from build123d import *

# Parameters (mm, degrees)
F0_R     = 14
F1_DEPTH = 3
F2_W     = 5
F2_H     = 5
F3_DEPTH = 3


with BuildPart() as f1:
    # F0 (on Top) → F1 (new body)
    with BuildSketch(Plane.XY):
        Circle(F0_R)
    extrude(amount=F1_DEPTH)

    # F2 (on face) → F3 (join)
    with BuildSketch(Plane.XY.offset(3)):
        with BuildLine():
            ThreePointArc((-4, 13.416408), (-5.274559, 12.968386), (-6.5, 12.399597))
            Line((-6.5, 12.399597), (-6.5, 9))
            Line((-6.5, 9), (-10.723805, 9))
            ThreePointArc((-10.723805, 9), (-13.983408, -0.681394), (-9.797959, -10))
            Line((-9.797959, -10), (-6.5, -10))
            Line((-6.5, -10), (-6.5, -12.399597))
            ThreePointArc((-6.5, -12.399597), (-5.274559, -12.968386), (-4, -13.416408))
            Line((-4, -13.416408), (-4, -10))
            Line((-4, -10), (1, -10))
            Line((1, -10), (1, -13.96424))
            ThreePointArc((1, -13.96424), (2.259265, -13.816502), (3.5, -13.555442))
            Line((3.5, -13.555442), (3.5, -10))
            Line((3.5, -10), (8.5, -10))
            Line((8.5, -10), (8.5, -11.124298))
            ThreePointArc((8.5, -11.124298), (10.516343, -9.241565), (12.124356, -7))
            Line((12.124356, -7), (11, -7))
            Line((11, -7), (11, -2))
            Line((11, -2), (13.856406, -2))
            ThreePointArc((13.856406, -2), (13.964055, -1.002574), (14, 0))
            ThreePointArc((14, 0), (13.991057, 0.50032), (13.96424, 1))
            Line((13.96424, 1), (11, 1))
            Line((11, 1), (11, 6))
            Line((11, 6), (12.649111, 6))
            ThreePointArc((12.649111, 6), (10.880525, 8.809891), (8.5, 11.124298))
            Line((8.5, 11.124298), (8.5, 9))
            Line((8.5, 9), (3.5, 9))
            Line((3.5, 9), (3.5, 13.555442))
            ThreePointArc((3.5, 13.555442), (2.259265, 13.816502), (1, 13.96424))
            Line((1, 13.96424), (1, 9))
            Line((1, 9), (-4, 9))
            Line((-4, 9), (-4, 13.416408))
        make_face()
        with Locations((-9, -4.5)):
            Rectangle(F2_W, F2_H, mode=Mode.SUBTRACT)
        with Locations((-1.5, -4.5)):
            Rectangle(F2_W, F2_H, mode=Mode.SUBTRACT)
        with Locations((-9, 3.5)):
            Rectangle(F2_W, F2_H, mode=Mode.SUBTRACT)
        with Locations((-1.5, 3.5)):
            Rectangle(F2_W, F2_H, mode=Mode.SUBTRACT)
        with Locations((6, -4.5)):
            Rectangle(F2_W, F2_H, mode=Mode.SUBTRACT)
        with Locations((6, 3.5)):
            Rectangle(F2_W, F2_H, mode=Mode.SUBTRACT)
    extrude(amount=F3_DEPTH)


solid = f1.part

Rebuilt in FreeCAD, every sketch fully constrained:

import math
import FreeCAD as App
import Part
import Sketcher
from FreeCAD import Vector

doc = App.newDocument("Part")
body = doc.addObject("PartDesign::Body", "Body")

# Sketch on XY plane
sketch1 = body.newObject("Sketcher::SketchObject", "Sketch")
sketch1.AttachmentSupport = (doc.getObject("XY_Plane"), [""])
sketch1.MapMode = "FlatFace"
sketch1.addGeometry(Part.Circle(Vector(0, 0, 0), Vector(0, 0, 1), 14), False)
sketch1.addConstraint(Sketcher.Constraint("Coincident", 0, 3, -1, 1))
sketch1.addConstraint(Sketcher.Constraint("Diameter", 0, 28.0))
pad1 = body.newObject("PartDesign::Pad", "Pad")
pad1.Profile = sketch1
pad1.Length = 3

# Sketch on XY plane
sketch2 = body.newObject("Sketcher::SketchObject", "Sketch001")
sketch2.AttachmentSupport = (doc.getObject("XY_Plane"), [""])
sketch2.MapMode = "FlatFace"
sketch2.AttachmentOffset = App.Placement(Vector(0, 0, 3), App.Rotation())
sketch2.addGeometry(Part.ArcOfCircle(Part.Circle(Vector(-0.00001, 0.000024, 0), Vector(0, 0, 1), 13.999974), math.radians(106.601538), math.radians(117.664013)), False)
sketch2.addGeometry(Part.LineSegment(Vector(-6.5, 12.399597, 0), Vector(-6.5, 9, 0)), False)
sketch2.addGeometry(Part.LineSegment(Vector(-6.5, 9, 0), Vector(-10.723805, 9, 0)), False)
sketch2.addGeometry(Part.ArcOfCircle(Part.Circle(Vector(0, 0, 0), Vector(0, 0, 1), 14), math.radians(139.994798), math.radians(225.584691)), False)
sketch2.addGeometry(Part.LineSegment(Vector(-9.797959, -10, 0), Vector(-6.5, -10, 0)), False)
sketch2.addGeometry(Part.LineSegment(Vector(-6.5, -10, 0), Vector(-6.5, -12.399597, 0)), False)
sketch2.addGeometry(Part.ArcOfCircle(Part.Circle(Vector(-0.00001, -0.000024, 0), Vector(0, 0, 1), 13.999974), math.radians(-117.664013), math.radians(-106.601538)), False)
sketch2.addGeometry(Part.LineSegment(Vector(-4, -13.416408, 0), Vector(-4, -10, 0)), False)
sketch2.addGeometry(Part.LineSegment(Vector(-4, -10, 0), Vector(1, -10, 0)), False)
sketch2.addGeometry(Part.LineSegment(Vector(1, -10, 0), Vector(1, -13.96424, 0)), False)
sketch2.addGeometry(Part.ArcOfCircle(Part.Circle(Vector(0.000005, -0.000022, 0), Vector(0, 0, 1), 13.999978), math.radians(-85.903972), math.radians(-75.522487)), False)
sketch2.addGeometry(Part.LineSegment(Vector(3.5, -13.555442, 0), Vector(3.5, -10, 0)), False)
sketch2.addGeometry(Part.LineSegment(Vector(3.5, -10, 0), Vector(8.5, -10, 0)), False)
sketch2.addGeometry(Part.LineSegment(Vector(8.5, -10, 0), Vector(8.5, -11.124298, 0)), False)
sketch2.addGeometry(Part.ArcOfCircle(Part.Circle(Vector(-0.000018, 0.000017, 0), Vector(0, 0, 1), 14.000025), math.radians(-52.616783), math.radians(-30.00002)), False)
sketch2.addGeometry(Part.LineSegment(Vector(12.124356, -7, 0), Vector(11, -7, 0)), False)
sketch2.addGeometry(Part.LineSegment(Vector(11, -7, 0), Vector(11, -2, 0)), False)
sketch2.addGeometry(Part.LineSegment(Vector(11, -2, 0), Vector(13.856406, -2, 0)), False)
sketch2.addGeometry(Part.ArcOfCircle(Part.Circle(Vector(-0.000096, 0.00001, 0), Vector(0, 0, 1), 14.000096), math.radians(-8.213196), math.radians(-0.000041)), False)
sketch2.addGeometry(Part.ArcOfCircle(Part.Circle(Vector(-0.000185, -0.000007, 0), Vector(0, 0, 1), 14.000185), math.radians(0.00003), math.radians(4.096019)), False)
sketch2.addGeometry(Part.LineSegment(Vector(13.96424, 1, 0), Vector(11, 1, 0)), False)
sketch2.addGeometry(Part.LineSegment(Vector(11, 1, 0), Vector(11, 6, 0)), False)
sketch2.addGeometry(Part.LineSegment(Vector(11, 6, 0), Vector(12.649111, 6, 0)), False)
sketch2.addGeometry(Part.ArcOfCircle(Part.Circle(Vector(-0.000004, -0.000003, 0), Vector(0, 0, 1), 14.000005), math.radians(25.376939), math.radians(52.616798)), False)
sketch2.addGeometry(Part.LineSegment(Vector(8.5, 11.124298, 0), Vector(8.5, 9, 0)), False)
sketch2.addGeometry(Part.LineSegment(Vector(8.5, 9, 0), Vector(3.5, 9, 0)), False)
sketch2.addGeometry(Part.LineSegment(Vector(3.5, 9, 0), Vector(3.5, 13.555442, 0)), False)
sketch2.addGeometry(Part.ArcOfCircle(Part.Circle(Vector(0.000005, 0.000022, 0), Vector(0, 0, 1), 13.999978), math.radians(75.522487), math.radians(85.903972)), False)
sketch2.addGeometry(Part.LineSegment(Vector(1, 13.96424, 0), Vector(1, 9, 0)), False)
sketch2.addGeometry(Part.LineSegment(Vector(1, 9, 0), Vector(-4, 9, 0)), False)
sketch2.addGeometry(Part.LineSegment(Vector(-4, 9, 0), Vector(-4, 13.416408, 0)), False)
sketch2.addGeometry(Part.LineSegment(Vector(-6.5, -7, 0), Vector(-11.5, -7, 0)), False)
sketch2.addGeometry(Part.LineSegment(Vector(-11.5, -7, 0), Vector(-11.5, -2, 0)), False)
sketch2.addGeometry(Part.LineSegment(Vector(-11.5, -2, 0), Vector(-6.5, -2, 0)), False)
sketch2.addGeometry(Part.LineSegment(Vector(-6.5, -2, 0), Vector(-6.5, -7, 0)), False)
sketch2.addGeometry(Part.LineSegment(Vector(1, -7, 0), Vector(-4, -7, 0)), False)
sketch2.addGeometry(Part.LineSegment(Vector(-4, -7, 0), Vector(-4, -2, 0)), False)
sketch2.addGeometry(Part.LineSegment(Vector(-4, -2, 0), Vector(1, -2, 0)), False)
sketch2.addGeometry(Part.LineSegment(Vector(1, -2, 0), Vector(1, -7, 0)), False)
sketch2.addGeometry(Part.LineSegment(Vector(8.5, -7, 0), Vector(3.5, -7, 0)), False)
sketch2.addGeometry(Part.LineSegment(Vector(3.5, -7, 0), Vector(3.5, -2, 0)), False)
sketch2.addGeometry(Part.LineSegment(Vector(3.5, -2, 0), Vector(8.5, -2, 0)), False)
sketch2.addGeometry(Part.LineSegment(Vector(8.5, -2, 0), Vector(8.5, -7, 0)), False)
sketch2.addGeometry(Part.LineSegment(Vector(-6.5, 1, 0), Vector(-11.5, 1, 0)), False)
sketch2.addGeometry(Part.LineSegment(Vector(-11.5, 1, 0), Vector(-11.5, 6, 0)), False)
sketch2.addGeometry(Part.LineSegment(Vector(-11.5, 6, 0), Vector(-6.5, 6, 0)), False)
sketch2.addGeometry(Part.LineSegment(Vector(-6.5, 6, 0), Vector(-6.5, 1, 0)), False)
sketch2.addGeometry(Part.LineSegment(Vector(1, 1, 0), Vector(-4, 1, 0)), False)
sketch2.addGeometry(Part.LineSegment(Vector(-4, 1, 0), Vector(-4, 6, 0)), False)
sketch2.addGeometry(Part.LineSegment(Vector(-4, 6, 0), Vector(1, 6, 0)), False)
sketch2.addGeometry(Part.LineSegment(Vector(1, 6, 0), Vector(1, 1, 0)), False)
sketch2.addGeometry(Part.LineSegment(Vector(8.5, 1, 0), Vector(3.5, 1, 0)), False)
sketch2.addGeometry(Part.LineSegment(Vector(3.5, 1, 0), Vector(3.5, 6, 0)), False)
sketch2.addGeometry(Part.LineSegment(Vector(3.5, 6, 0), Vector(8.5, 6, 0)), False)
sketch2.addGeometry(Part.LineSegment(Vector(8.5, 6, 0), Vector(8.5, 1, 0)), False)
sketch2.addConstraint(Sketcher.Constraint("Coincident", 0, 2, 1, 1))
sketch2.addConstraint(Sketcher.Constraint("Coincident", 1, 2, 2, 1))
sketch2.addConstraint(Sketcher.Constraint("Coincident", 2, 2, 3, 1))
sketch2.addConstraint(Sketcher.Constraint("Coincident", 3, 2, 4, 1))
sketch2.addConstraint(Sketcher.Constraint("Coincident", 4, 2, 5, 1))
sketch2.addConstraint(Sketcher.Constraint("Coincident", 5, 2, 6, 1))
sketch2.addConstraint(Sketcher.Constraint("Coincident", 6, 2, 7, 1))
sketch2.addConstraint(Sketcher.Constraint("Coincident", 7, 2, 8, 1))
sketch2.addConstraint(Sketcher.Constraint("Coincident", 8, 2, 9, 1))
sketch2.addConstraint(Sketcher.Constraint("Coincident", 9, 2, 10, 1))
sketch2.addConstraint(Sketcher.Constraint("Coincident", 10, 2, 11, 1))
sketch2.addConstraint(Sketcher.Constraint("Coincident", 11, 2, 12, 1))
sketch2.addConstraint(Sketcher.Constraint("Coincident", 12, 2, 13, 1))
sketch2.addConstraint(Sketcher.Constraint("Coincident", 13, 2, 14, 1))
sketch2.addConstraint(Sketcher.Constraint("Coincident", 14, 2, 15, 1))
sketch2.addConstraint(Sketcher.Constraint("Coincident", 15, 2, 16, 1))
sketch2.addConstraint(Sketcher.Constraint("Coincident", 16, 2, 17, 1))
sketch2.addConstraint(Sketcher.Constraint("Coincident", 17, 2, 18, 1))
sketch2.addConstraint(Sketcher.Constraint("Tangent", 18, 2, 19, 1))
sketch2.addConstraint(Sketcher.Constraint("Coincident", 19, 2, 20, 1))
sketch2.addConstraint(Sketcher.Constraint("Coincident", 20, 2, 21, 1))
sketch2.addConstraint(Sketcher.Constraint("Coincident", 21, 2, 22, 1))
sketch2.addConstraint(Sketcher.Constraint("Coincident", 22, 2, 23, 1))
sketch2.addConstraint(Sketcher.Constraint("Coincident", 23, 2, 24, 1))
sketch2.addConstraint(Sketcher.Constraint("Coincident", 24, 2, 25, 1))
sketch2.addConstraint(Sketcher.Constraint("Coincident", 25, 2, 26, 1))
sketch2.addConstraint(Sketcher.Constraint("Coincident", 26, 2, 27, 1))
sketch2.addConstraint(Sketcher.Constraint("Coincident", 27, 2, 28, 1))
sketch2.addConstraint(Sketcher.Constraint("Coincident", 28, 2, 29, 1))
sketch2.addConstraint(Sketcher.Constraint("Coincident", 29, 2, 30, 1))
sketch2.addConstraint(Sketcher.Constraint("Coincident", 30, 2, 0, 1))
sketch2.addConstraint(Sketcher.Constraint("Coincident", 31, 2, 32, 1))
sketch2.addConstraint(Sketcher.Constraint("Coincident", 32, 2, 33, 1))
sketch2.addConstraint(Sketcher.Constraint("Coincident", 33, 2, 34, 1))
sketch2.addConstraint(Sketcher.Constraint("Coincident", 34, 2, 31, 1))
sketch2.addConstraint(Sketcher.Constraint("Coincident", 35, 2, 36, 1))
sketch2.addConstraint(Sketcher.Constraint("Coincident", 36, 2, 37, 1))
sketch2.addConstraint(Sketcher.Constraint("Coincident", 37, 2, 38, 1))
sketch2.addConstraint(Sketcher.Constraint("Coincident", 38, 2, 35, 1))
sketch2.addConstraint(Sketcher.Constraint("Coincident", 39, 2, 40, 1))
sketch2.addConstraint(Sketcher.Constraint("Coincident", 40, 2, 41, 1))
sketch2.addConstraint(Sketcher.Constraint("Coincident", 41, 2, 42, 1))
sketch2.addConstraint(Sketcher.Constraint("Coincident", 42, 2, 39, 1))
sketch2.addConstraint(Sketcher.Constraint("Coincident", 43, 2, 44, 1))
sketch2.addConstraint(Sketcher.Constraint("Coincident", 44, 2, 45, 1))
sketch2.addConstraint(Sketcher.Constraint("Coincident", 45, 2, 46, 1))
sketch2.addConstraint(Sketcher.Constraint("Coincident", 46, 2, 43, 1))
sketch2.addConstraint(Sketcher.Constraint("Coincident", 47, 2, 48, 1))
sketch2.addConstraint(Sketcher.Constraint("Coincident", 48, 2, 49, 1))
sketch2.addConstraint(Sketcher.Constraint("Coincident", 49, 2, 50, 1))
sketch2.addConstraint(Sketcher.Constraint("Coincident", 50, 2, 47, 1))
sketch2.addConstraint(Sketcher.Constraint("Coincident", 51, 2, 52, 1))
sketch2.addConstraint(Sketcher.Constraint("Coincident", 52, 2, 53, 1))
sketch2.addConstraint(Sketcher.Constraint("Coincident", 53, 2, 54, 1))
sketch2.addConstraint(Sketcher.Constraint("Coincident", 54, 2, 51, 1))
sketch2.addConstraint(Sketcher.Constraint("Vertical", 1))
sketch2.addConstraint(Sketcher.Constraint("Horizontal", 2))
sketch2.addConstraint(Sketcher.Constraint("Horizontal", 4))
sketch2.addConstraint(Sketcher.Constraint("Vertical", 5))
sketch2.addConstraint(Sketcher.Constraint("Vertical", 7))
sketch2.addConstraint(Sketcher.Constraint("Horizontal", 8))
sketch2.addConstraint(Sketcher.Constraint("Vertical", 9))
sketch2.addConstraint(Sketcher.Constraint("Vertical", 11))
sketch2.addConstraint(Sketcher.Constraint("Horizontal", 12))
sketch2.addConstraint(Sketcher.Constraint("Vertical", 13))
sketch2.addConstraint(Sketcher.Constraint("Horizontal", 15))
sketch2.addConstraint(Sketcher.Constraint("Vertical", 16))
sketch2.addConstraint(Sketcher.Constraint("Horizontal", 17))
sketch2.addConstraint(Sketcher.Constraint("Horizontal", 20))
sketch2.addConstraint(Sketcher.Constraint("Vertical", 21))
sketch2.addConstraint(Sketcher.Constraint("Horizontal", 22))
sketch2.addConstraint(Sketcher.Constraint("Vertical", 24))
sketch2.addConstraint(Sketcher.Constraint("Horizontal", 25))
sketch2.addConstraint(Sketcher.Constraint("Vertical", 26))
sketch2.addConstraint(Sketcher.Constraint("Vertical", 28))
sketch2.addConstraint(Sketcher.Constraint("Horizontal", 29))
sketch2.addConstraint(Sketcher.Constraint("Vertical", 30))
sketch2.addConstraint(Sketcher.Constraint("Horizontal", 31))
sketch2.addConstraint(Sketcher.Constraint("Vertical", 32))
sketch2.addConstraint(Sketcher.Constraint("Horizontal", 33))
sketch2.addConstraint(Sketcher.Constraint("Vertical", 34))
sketch2.addConstraint(Sketcher.Constraint("Horizontal", 35))
sketch2.addConstraint(Sketcher.Constraint("Vertical", 36))
sketch2.addConstraint(Sketcher.Constraint("Horizontal", 37))
sketch2.addConstraint(Sketcher.Constraint("Vertical", 38))
sketch2.addConstraint(Sketcher.Constraint("Horizontal", 39))
sketch2.addConstraint(Sketcher.Constraint("Vertical", 40))
sketch2.addConstraint(Sketcher.Constraint("Horizontal", 41))
sketch2.addConstraint(Sketcher.Constraint("Vertical", 42))
sketch2.addConstraint(Sketcher.Constraint("Horizontal", 43))
sketch2.addConstraint(Sketcher.Constraint("Vertical", 44))
sketch2.addConstraint(Sketcher.Constraint("Horizontal", 45))
sketch2.addConstraint(Sketcher.Constraint("Vertical", 46))
sketch2.addConstraint(Sketcher.Constraint("Horizontal", 47))
sketch2.addConstraint(Sketcher.Constraint("Vertical", 48))
sketch2.addConstraint(Sketcher.Constraint("Horizontal", 49))
sketch2.addConstraint(Sketcher.Constraint("Vertical", 50))
sketch2.addConstraint(Sketcher.Constraint("Horizontal", 51))
sketch2.addConstraint(Sketcher.Constraint("Vertical", 52))
sketch2.addConstraint(Sketcher.Constraint("Horizontal", 53))
sketch2.addConstraint(Sketcher.Constraint("Vertical", 54))
sketch2.addConstraint(Sketcher.Constraint("Coincident", 3, 3, -1, 1))
sketch2.addConstraint(Sketcher.Constraint("Coincident", 23, 3, -1, 1))
sketch2.addConstraint(Sketcher.Constraint("Equal", 0, 6))
sketch2.addConstraint(Sketcher.Constraint("Equal", 10, 27))
sketch2.addConstraint(Sketcher.Constraint("Symmetric", 0, 3, 10, 3, -1, 1))
sketch2.addConstraint(Sketcher.Constraint("Symmetric", 6, 3, 27, 3, -1, 1))
sketch2.addConstraint(Sketcher.Constraint("Symmetric", 6, 3, 10, 3, -2))
sketch2.addConstraint(Sketcher.Constraint("Symmetric", 13, 2, 23, 2, -1))
sketch2.addConstraint(Sketcher.Constraint("PointOnObject", 18, 2, -1))
sketch2.addConstraint(Sketcher.Constraint("Horizontal", 4, 2, 7, 2))
sketch2.addConstraint(Sketcher.Constraint("Horizontal", 8, 2, 11, 2))
sketch2.addConstraint(Sketcher.Constraint("Horizontal", 2, 2, 24, 2))
sketch2.addConstraint(Sketcher.Constraint("Horizontal", 25, 2, 28, 2))
sketch2.addConstraint(Sketcher.Constraint("Horizontal", 15, 2, 31, 2))
sketch2.addConstraint(Sketcher.Constraint("Horizontal", 17, 2, 32, 2))
sketch2.addConstraint(Sketcher.Constraint("Horizontal", 34, 2, 35, 2))
sketch2.addConstraint(Sketcher.Constraint("Horizontal", 33, 2, 36, 2))
sketch2.addConstraint(Sketcher.Constraint("Horizontal", 38, 2, 39, 2))
sketch2.addConstraint(Sketcher.Constraint("Horizontal", 37, 2, 40, 2))
sketch2.addConstraint(Sketcher.Constraint("Horizontal", 20, 2, 43, 2))
sketch2.addConstraint(Sketcher.Constraint("Horizontal", 22, 2, 44, 2))
sketch2.addConstraint(Sketcher.Constraint("Horizontal", 46, 2, 47, 2))
sketch2.addConstraint(Sketcher.Constraint("Horizontal", 45, 2, 48, 2))
sketch2.addConstraint(Sketcher.Constraint("Horizontal", 50, 2, 51, 2))
sketch2.addConstraint(Sketcher.Constraint("Horizontal", 49, 2, 52, 2))
sketch2.addConstraint(Sketcher.Constraint("Vertical", 1, 2, 4, 2))
sketch2.addConstraint(Sketcher.Constraint("Vertical", 16, 2, 20, 2))
sketch2.addConstraint(Sketcher.Constraint("Vertical", 11, 2, 25, 2))
sketch2.addConstraint(Sketcher.Constraint("Vertical", 9, 2, 27, 2))
sketch2.addConstraint(Sketcher.Constraint("Vertical", 7, 2, 29, 2))
sketch2.addConstraint(Sketcher.Constraint("Vertical", 5, 2, 33, 2))
sketch2.addConstraint(Sketcher.Constraint("Vertical", 30, 2, 35, 2))
sketch2.addConstraint(Sketcher.Constraint("Vertical", 28, 2, 37, 2))
sketch2.addConstraint(Sketcher.Constraint("Vertical", 26, 2, 39, 2))
sketch2.addConstraint(Sketcher.Constraint("Vertical", 24, 2, 41, 2))
sketch2.addConstraint(Sketcher.Constraint("Vertical", 32, 2, 43, 2))
sketch2.addConstraint(Sketcher.Constraint("Vertical", 34, 2, 45, 2))
sketch2.addConstraint(Sketcher.Constraint("Vertical", 36, 2, 47, 2))
sketch2.addConstraint(Sketcher.Constraint("Vertical", 38, 2, 49, 2))
sketch2.addConstraint(Sketcher.Constraint("Vertical", 40, 2, 51, 2))
sketch2.addConstraint(Sketcher.Constraint("Vertical", 42, 2, 53, 2))
sketch2.addConstraint(Sketcher.Constraint("Equal", 8, 12))
sketch2.addConstraint(Sketcher.Constraint("Equal", 29, 31))
sketch2.addConstraint(Sketcher.Constraint("Equal", 53, 16))
sketch2.addConstraint(Sketcher.Constraint("Equal", 16, 21))
sketch2.addConstraint(Sketcher.Constraint("Radius", 3, 14.0))
sketch2.addConstraint(Sketcher.Constraint("DistanceX", 8, 1, 8, 2, 5.0))
sketch2.addConstraint(Sketcher.Constraint("DistanceY", -1, 1, 1, 2, 9.0))
sketch2.addConstraint(Sketcher.Constraint("DistanceY", 3, 2, -1, 1, 10.0))
sketch2.addConstraint(Sketcher.Constraint("DistanceX", 6, 2, -1, 1, 4.0))
sketch2.addConstraint(Sketcher.Constraint("DistanceY", 14, 2, -1, 1, 7.0))
sketch2.addConstraint(Sketcher.Constraint("DistanceX", -1, 1, 15, 2, 11.0))
sketch2.addConstraint(Sketcher.Constraint("DistanceX", -1, 1, 18, 2, 14.0))
sketch2.addConstraint(Sketcher.Constraint("DistanceY", -1, 1, 19, 2, 1.0))
sketch2.addConstraint(Sketcher.Constraint("DistanceX", 0, 2, -1, 1, 6.5))
sketch2.addConstraint(Sketcher.Constraint("DistanceX", -1, 1, 10, 2, 3.5))
sketch2.addConstraint(Sketcher.Constraint("Radius", 0, 13.999974))
sketch2.addConstraint(Sketcher.Constraint("Radius", 10, 13.999978))
sketch2.addConstraint(Sketcher.Constraint("Radius", 14, 14.000025))
sketch2.addConstraint(Sketcher.Constraint("Radius", 18, 14.000096))
sketch2.addConstraint(Sketcher.Constraint("Radius", 19, 14.000185))
sketch2.addConstraint(Sketcher.Constraint("Radius", 23, 14.000005))
sketch2.addConstraint(Sketcher.Constraint("DistanceX", 20, 2, 20, 1, 2.96424))
sketch2.addConstraint(Sketcher.Constraint("DistanceY", 7, 1, 7, 2, 3.416408))
sketch2.addConstraint(Sketcher.Constraint("DistanceY", 9, 2, 9, 1, 3.96424))
sketch2.addConstraint(Sketcher.Constraint("DistanceX", 15, 2, 15, 1, 1.124356))
pad2 = body.newObject("PartDesign::Pad", "Pad001")
pad2.Profile = sketch2
pad2.Length = 3

doc.recompute()
